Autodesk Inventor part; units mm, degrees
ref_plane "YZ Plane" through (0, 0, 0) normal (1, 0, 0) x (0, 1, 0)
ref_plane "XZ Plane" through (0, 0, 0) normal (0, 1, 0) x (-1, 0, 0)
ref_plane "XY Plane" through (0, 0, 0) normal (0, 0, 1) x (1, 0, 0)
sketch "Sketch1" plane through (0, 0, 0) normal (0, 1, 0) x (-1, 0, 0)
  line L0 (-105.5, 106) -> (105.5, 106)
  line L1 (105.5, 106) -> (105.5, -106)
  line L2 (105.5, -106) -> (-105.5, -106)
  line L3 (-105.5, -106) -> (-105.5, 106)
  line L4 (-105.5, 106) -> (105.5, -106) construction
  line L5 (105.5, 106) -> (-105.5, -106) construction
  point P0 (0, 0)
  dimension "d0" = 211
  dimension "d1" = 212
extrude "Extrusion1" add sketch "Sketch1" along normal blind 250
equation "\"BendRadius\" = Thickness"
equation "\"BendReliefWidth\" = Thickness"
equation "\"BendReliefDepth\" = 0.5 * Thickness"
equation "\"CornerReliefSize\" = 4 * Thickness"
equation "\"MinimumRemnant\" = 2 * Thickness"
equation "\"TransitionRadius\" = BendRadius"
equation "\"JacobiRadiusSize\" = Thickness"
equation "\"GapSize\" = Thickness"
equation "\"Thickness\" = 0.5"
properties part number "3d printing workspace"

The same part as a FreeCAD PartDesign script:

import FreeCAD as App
import Part
import Sketcher
Q = App.Units.Quantity

doc = App.newDocument("Part")
body = doc.addObject("PartDesign::Body", "Body")

# Sketch on XZ plane
sketch1 = body.newObject("Sketcher::SketchObject", "Sketch")
sketch1.AttachmentSupport = (doc.getObject("XZ_Plane"), [""])
sketch1.MapMode = "FlatFace"
sketch1.addGeometry(Part.LineSegment(App.Vector(-105.5, 106, 0), App.Vector(105.5, 106, 0)), False)
sketch1.addGeometry(Part.LineSegment(App.Vector(105.5, 106, 0), App.Vector(105.5, -106, 0)), False)
sketch1.addGeometry(Part.LineSegment(App.Vector(105.5, -106, 0), App.Vector(-105.5, -106, 0)), False)
sketch1.addGeometry(Part.LineSegment(App.Vector(-105.5, -106, 0), App.Vector(-105.5, 106, 0)), False)
sketch1.addConstraint(Sketcher.Constraint("Coincident", 0, 2, 1, 1))
sketch1.addConstraint(Sketcher.Constraint("Coincident", 1, 2, 2, 1))
sketch1.addConstraint(Sketcher.Constraint("Coincident", 2, 2, 3, 1))
sketch1.addConstraint(Sketcher.Constraint("Coincident", 3, 2, 0, 1))
sketch1.addConstraint(Sketcher.Constraint("Horizontal", 0))
sketch1.addConstraint(Sketcher.Constraint("Vertical", 1))
sketch1.addConstraint(Sketcher.Constraint("Horizontal", 2))
sketch1.addConstraint(Sketcher.Constraint("Vertical", 3))
sketch1.addConstraint(Sketcher.Constraint("Symmetric", 0, 2, 2, 2, -1, 1))
sketch1.addConstraint(Sketcher.Constraint("DistanceX", 0, 1, 0, 2, Q("211 mm")))
sketch1.addConstraint(Sketcher.Constraint("DistanceY", 1, 2, 1, 1, Q("212 mm")))
pad1 = body.newObject("PartDesign::Pad", "Pad")
pad1.Profile = sketch1
pad1.Length = 250
pad1.Reversed = True

doc.recompute()
